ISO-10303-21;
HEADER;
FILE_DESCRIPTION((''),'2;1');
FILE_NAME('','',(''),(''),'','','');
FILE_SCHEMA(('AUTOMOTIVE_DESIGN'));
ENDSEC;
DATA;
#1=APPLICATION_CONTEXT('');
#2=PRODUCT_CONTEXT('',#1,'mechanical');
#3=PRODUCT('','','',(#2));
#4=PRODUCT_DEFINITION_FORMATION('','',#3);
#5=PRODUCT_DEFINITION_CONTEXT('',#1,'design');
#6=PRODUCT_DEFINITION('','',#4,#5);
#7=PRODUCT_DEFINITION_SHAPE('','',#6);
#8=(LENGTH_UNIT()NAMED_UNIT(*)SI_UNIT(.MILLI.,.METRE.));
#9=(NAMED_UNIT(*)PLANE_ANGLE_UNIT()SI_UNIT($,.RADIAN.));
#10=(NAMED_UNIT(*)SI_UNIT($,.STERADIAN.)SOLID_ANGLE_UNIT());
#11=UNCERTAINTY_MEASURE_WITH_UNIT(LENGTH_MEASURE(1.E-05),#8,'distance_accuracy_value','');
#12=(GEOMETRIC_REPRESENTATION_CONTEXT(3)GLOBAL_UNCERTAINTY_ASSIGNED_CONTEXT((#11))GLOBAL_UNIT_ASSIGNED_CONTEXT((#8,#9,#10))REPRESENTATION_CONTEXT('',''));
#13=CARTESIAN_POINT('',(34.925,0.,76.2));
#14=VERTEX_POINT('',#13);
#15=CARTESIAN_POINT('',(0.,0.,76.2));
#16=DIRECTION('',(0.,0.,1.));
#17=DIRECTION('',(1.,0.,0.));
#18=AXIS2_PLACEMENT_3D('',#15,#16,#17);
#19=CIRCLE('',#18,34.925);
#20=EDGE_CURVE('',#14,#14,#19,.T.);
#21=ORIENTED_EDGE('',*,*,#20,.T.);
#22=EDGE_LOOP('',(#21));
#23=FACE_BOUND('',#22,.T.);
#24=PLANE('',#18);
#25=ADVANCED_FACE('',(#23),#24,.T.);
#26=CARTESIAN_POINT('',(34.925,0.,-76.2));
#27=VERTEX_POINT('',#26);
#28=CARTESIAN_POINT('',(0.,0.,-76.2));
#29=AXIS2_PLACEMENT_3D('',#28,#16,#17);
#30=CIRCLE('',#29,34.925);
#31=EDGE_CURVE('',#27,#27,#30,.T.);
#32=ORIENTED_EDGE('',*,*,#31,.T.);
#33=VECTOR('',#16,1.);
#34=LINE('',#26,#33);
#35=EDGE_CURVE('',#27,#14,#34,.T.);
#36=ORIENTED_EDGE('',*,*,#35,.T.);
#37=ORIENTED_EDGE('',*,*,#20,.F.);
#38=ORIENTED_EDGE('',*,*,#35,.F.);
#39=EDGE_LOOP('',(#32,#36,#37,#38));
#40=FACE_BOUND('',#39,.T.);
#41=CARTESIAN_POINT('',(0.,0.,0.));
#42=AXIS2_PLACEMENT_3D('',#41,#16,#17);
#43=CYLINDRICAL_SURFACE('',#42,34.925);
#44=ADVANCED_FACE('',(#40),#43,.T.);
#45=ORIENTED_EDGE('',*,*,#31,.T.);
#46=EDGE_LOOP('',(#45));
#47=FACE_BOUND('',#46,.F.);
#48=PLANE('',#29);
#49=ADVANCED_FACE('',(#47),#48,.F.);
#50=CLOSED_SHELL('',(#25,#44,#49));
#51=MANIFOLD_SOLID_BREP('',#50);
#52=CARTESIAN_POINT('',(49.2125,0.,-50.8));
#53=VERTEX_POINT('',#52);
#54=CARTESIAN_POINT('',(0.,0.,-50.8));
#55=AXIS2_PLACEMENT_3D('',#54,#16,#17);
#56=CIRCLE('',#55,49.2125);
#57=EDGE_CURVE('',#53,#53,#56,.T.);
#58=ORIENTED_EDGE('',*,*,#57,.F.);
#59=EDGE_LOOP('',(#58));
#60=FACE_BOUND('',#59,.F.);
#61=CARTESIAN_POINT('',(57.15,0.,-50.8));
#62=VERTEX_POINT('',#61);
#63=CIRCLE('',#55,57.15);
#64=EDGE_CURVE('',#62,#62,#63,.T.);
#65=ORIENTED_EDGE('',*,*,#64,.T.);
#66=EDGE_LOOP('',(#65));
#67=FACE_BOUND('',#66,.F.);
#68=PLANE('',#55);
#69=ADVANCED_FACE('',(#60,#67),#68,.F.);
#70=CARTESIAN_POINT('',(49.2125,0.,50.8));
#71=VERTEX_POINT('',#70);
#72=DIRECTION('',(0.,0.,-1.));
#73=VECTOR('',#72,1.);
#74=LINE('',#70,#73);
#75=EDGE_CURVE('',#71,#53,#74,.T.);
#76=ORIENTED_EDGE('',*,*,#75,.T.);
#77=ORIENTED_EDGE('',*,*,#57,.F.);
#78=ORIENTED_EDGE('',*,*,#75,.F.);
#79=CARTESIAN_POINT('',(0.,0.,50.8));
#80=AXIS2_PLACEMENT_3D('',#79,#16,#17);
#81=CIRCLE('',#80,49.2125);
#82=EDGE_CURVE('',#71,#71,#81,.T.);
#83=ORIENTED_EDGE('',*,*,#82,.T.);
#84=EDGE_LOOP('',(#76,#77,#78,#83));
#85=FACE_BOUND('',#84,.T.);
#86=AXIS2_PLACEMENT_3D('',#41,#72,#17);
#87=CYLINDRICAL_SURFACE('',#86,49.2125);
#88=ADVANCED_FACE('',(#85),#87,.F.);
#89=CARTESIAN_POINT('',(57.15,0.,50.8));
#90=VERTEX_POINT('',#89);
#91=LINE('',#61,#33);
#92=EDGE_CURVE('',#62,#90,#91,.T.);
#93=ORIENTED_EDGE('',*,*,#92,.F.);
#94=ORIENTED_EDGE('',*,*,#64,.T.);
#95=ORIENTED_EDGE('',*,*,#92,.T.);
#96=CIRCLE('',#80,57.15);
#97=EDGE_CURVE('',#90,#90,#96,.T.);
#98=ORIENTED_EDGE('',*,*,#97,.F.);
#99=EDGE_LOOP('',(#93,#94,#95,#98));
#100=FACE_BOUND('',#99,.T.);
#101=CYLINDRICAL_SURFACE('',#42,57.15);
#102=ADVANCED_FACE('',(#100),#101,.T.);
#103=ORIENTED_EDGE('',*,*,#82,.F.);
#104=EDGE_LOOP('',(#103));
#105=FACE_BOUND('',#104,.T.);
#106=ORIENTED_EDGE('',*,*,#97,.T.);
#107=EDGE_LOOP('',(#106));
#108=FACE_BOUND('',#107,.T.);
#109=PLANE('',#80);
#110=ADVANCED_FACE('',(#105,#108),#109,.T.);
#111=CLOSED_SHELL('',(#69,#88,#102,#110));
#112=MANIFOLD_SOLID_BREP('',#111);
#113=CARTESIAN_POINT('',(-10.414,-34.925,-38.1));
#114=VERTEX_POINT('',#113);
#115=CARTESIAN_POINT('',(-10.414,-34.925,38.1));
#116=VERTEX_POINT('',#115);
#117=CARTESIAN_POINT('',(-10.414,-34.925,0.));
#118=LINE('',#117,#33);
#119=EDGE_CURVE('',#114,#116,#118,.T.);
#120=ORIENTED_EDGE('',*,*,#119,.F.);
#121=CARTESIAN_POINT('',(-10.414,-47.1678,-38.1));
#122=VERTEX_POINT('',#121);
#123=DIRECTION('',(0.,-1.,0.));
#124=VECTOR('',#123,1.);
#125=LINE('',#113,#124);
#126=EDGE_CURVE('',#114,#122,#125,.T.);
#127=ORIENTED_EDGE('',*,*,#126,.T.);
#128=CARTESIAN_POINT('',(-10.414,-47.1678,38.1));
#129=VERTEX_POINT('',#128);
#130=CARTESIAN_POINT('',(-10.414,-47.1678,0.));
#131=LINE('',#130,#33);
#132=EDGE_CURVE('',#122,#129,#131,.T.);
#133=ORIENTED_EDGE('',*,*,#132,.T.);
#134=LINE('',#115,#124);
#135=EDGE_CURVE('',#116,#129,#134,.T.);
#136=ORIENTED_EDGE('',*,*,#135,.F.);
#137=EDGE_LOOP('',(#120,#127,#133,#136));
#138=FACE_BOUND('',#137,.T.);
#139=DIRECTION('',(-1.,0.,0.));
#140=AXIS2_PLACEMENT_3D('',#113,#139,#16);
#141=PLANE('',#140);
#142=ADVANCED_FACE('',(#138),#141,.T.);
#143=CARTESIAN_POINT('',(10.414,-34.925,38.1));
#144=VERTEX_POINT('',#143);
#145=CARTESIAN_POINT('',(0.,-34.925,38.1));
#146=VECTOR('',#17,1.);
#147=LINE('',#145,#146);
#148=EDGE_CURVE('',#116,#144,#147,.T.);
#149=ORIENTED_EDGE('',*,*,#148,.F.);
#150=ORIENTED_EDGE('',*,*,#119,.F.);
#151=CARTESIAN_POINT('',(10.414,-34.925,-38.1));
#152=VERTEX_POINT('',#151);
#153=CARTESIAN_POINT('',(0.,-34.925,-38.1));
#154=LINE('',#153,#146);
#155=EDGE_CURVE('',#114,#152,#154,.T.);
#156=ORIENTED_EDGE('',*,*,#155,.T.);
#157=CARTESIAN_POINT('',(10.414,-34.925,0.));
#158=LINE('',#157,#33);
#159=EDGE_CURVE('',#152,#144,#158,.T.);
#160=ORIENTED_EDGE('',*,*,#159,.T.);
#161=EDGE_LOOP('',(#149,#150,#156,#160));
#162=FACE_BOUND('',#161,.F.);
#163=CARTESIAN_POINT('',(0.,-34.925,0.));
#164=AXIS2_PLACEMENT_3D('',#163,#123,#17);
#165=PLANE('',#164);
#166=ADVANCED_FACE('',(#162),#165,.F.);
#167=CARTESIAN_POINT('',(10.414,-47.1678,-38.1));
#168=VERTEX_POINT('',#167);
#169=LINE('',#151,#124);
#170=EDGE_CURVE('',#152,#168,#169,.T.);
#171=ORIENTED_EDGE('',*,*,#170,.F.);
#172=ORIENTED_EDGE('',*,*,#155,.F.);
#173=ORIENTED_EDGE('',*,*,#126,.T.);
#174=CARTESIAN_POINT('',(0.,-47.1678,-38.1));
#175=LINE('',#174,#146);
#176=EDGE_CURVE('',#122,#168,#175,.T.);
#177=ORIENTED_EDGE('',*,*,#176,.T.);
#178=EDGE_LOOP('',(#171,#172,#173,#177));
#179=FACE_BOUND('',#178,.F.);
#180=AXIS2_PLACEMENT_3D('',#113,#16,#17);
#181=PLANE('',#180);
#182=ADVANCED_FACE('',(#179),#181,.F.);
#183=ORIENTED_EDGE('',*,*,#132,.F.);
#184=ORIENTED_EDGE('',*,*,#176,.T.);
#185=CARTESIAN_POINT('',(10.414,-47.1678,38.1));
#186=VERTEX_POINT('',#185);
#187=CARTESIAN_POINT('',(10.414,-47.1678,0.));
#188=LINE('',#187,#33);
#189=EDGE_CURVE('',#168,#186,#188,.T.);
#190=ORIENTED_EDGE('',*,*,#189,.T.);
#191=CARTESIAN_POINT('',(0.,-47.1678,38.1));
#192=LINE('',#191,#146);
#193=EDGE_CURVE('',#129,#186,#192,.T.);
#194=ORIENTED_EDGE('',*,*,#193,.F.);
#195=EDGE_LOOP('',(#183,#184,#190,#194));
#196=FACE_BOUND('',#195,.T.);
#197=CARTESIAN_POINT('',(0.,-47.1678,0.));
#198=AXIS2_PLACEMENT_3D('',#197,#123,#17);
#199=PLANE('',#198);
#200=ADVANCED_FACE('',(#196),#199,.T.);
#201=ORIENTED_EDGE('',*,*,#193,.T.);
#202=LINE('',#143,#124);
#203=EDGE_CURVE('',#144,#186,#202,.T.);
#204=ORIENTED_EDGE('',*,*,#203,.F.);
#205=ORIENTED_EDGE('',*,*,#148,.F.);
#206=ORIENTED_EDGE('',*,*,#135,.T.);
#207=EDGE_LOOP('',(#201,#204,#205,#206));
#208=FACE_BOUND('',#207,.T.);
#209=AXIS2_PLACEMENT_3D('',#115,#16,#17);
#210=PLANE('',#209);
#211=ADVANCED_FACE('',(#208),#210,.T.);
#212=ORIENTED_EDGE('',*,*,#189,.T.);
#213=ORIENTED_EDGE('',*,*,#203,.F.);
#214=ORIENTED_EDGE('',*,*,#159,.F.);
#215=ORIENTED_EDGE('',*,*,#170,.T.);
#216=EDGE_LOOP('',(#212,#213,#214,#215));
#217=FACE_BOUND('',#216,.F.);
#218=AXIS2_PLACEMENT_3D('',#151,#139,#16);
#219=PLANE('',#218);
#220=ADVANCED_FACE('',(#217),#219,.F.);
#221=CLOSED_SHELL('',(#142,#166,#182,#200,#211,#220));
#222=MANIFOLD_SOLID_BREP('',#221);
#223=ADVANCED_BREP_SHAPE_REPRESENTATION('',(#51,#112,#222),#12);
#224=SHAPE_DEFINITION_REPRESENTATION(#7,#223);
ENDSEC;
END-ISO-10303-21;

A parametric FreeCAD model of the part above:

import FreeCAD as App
import Part
import Sketcher
Q = App.Units.Quantity

doc = App.newDocument("Part")
body = doc.addObject("PartDesign::Body", "Body")

# Sketch on XY plane
sketch1 = body.newObject("Sketcher::SketchObject", "Sketch")
sketch1.AttachmentSupport = (doc.getObject("XY_Plane"), [""])
sketch1.MapMode = "FlatFace"
sketch1.addGeometry(Part.Circle(App.Vector(0, 0, 0), App.Vector(0, 0, 1), 35), False)
sketch1.addConstraint([
    Sketcher.Constraint("Coincident", 0, 3, -1, 1),
    Sketcher.Constraint("Diameter", 0, Q("2.75 in")),
])
pad1 = body.newObject("PartDesign::Pad", "Pad")
pad1.Profile = sketch1
pad1.Length = Q("6 in")
pad1.Midplane = True
body2 = doc.addObject("PartDesign::Body", "Body001")

# Sketch on XY plane
sketch2 = body2.newObject("Sketcher::SketchObject", "Sketch001")
sketch2.AttachmentSupport = (doc.getObject("XY_Plane001"), [""])
sketch2.MapMode = "FlatFace"
sketch2.addGeometry([
    Part.Circle(App.Vector(0, 0, 0), App.Vector(0, 0, 1), 57),
    Part.Circle(App.Vector(0, 0, 0), App.Vector(0, 0, 1), 49),
], False)
sketch2.addConstraint([
    Sketcher.Constraint("Coincident", 0, 3, -1, 1),
    Sketcher.Constraint("Coincident", 1, 3, -1, 1),
    Sketcher.Constraint("Diameter", 0, Q("4.5 in")),
    Sketcher.Constraint("Diameter", 1, Q("3.875 in")),
])
pad2 = body2.newObject("PartDesign::Pad", "Pad001")
pad2.Profile = sketch2
pad2.Length = Q("4 in")
pad2.Midplane = True
body3 = doc.addObject("PartDesign::Body", "Body002")

# Sketch on XZ plane
sketch3 = body3.newObject("Sketcher::SketchObject", "Sketch002")
sketch3.AttachmentSupport = (doc.getObject("XZ_Plane002"), [""])
sketch3.MapMode = "FlatFace"
sketch3.AttachmentOffset = App.Placement(App.Vector(0, 0, 1.375 * 25.4), App.Rotation())
sketch3.addGeometry([
    Part.LineSegment(App.Vector(-10, 38, 0), App.Vector(-10, -38, 0)),
    Part.LineSegment(App.Vector(-10, -38, 0), App.Vector(10, -38, 0)),
    Part.LineSegment(App.Vector(10, -38, 0), App.Vector(10, 38, 0)),
    Part.LineSegment(App.Vector(10, 38, 0), App.Vector(-10, 38, 0)),
], False)
sketch3.addConstraint([
    Sketcher.Constraint("Coincident", 0, 2, 1, 1),
    Sketcher.Constraint("Coincident", 1, 2, 2, 1),
    Sketcher.Constraint("Coincident", 2, 2, 3, 1),
    Sketcher.Constraint("Coincident", 3, 2, 0, 1),
    Sketcher.Constraint("Vertical", 0),
    Sketcher.Constraint("Horizontal", 1),
    Sketcher.Constraint("Vertical", 2),
    Sketcher.Constraint("Horizontal", 3),
    Sketcher.Constraint("Symmetric", 0, 2, 2, 2, -1, 1),
    Sketcher.Constraint("DistanceY", 0, 2, 0, 1, Q("3 in")),
    Sketcher.Constraint("DistanceX", 1, 1, 1, 2, Q("0.82 in")),
])
pad3 = body3.newObject("PartDesign::Pad", "Pad002")
pad3.Profile = sketch3
pad3.Length = Q("0.482 in")

doc.recompute()
